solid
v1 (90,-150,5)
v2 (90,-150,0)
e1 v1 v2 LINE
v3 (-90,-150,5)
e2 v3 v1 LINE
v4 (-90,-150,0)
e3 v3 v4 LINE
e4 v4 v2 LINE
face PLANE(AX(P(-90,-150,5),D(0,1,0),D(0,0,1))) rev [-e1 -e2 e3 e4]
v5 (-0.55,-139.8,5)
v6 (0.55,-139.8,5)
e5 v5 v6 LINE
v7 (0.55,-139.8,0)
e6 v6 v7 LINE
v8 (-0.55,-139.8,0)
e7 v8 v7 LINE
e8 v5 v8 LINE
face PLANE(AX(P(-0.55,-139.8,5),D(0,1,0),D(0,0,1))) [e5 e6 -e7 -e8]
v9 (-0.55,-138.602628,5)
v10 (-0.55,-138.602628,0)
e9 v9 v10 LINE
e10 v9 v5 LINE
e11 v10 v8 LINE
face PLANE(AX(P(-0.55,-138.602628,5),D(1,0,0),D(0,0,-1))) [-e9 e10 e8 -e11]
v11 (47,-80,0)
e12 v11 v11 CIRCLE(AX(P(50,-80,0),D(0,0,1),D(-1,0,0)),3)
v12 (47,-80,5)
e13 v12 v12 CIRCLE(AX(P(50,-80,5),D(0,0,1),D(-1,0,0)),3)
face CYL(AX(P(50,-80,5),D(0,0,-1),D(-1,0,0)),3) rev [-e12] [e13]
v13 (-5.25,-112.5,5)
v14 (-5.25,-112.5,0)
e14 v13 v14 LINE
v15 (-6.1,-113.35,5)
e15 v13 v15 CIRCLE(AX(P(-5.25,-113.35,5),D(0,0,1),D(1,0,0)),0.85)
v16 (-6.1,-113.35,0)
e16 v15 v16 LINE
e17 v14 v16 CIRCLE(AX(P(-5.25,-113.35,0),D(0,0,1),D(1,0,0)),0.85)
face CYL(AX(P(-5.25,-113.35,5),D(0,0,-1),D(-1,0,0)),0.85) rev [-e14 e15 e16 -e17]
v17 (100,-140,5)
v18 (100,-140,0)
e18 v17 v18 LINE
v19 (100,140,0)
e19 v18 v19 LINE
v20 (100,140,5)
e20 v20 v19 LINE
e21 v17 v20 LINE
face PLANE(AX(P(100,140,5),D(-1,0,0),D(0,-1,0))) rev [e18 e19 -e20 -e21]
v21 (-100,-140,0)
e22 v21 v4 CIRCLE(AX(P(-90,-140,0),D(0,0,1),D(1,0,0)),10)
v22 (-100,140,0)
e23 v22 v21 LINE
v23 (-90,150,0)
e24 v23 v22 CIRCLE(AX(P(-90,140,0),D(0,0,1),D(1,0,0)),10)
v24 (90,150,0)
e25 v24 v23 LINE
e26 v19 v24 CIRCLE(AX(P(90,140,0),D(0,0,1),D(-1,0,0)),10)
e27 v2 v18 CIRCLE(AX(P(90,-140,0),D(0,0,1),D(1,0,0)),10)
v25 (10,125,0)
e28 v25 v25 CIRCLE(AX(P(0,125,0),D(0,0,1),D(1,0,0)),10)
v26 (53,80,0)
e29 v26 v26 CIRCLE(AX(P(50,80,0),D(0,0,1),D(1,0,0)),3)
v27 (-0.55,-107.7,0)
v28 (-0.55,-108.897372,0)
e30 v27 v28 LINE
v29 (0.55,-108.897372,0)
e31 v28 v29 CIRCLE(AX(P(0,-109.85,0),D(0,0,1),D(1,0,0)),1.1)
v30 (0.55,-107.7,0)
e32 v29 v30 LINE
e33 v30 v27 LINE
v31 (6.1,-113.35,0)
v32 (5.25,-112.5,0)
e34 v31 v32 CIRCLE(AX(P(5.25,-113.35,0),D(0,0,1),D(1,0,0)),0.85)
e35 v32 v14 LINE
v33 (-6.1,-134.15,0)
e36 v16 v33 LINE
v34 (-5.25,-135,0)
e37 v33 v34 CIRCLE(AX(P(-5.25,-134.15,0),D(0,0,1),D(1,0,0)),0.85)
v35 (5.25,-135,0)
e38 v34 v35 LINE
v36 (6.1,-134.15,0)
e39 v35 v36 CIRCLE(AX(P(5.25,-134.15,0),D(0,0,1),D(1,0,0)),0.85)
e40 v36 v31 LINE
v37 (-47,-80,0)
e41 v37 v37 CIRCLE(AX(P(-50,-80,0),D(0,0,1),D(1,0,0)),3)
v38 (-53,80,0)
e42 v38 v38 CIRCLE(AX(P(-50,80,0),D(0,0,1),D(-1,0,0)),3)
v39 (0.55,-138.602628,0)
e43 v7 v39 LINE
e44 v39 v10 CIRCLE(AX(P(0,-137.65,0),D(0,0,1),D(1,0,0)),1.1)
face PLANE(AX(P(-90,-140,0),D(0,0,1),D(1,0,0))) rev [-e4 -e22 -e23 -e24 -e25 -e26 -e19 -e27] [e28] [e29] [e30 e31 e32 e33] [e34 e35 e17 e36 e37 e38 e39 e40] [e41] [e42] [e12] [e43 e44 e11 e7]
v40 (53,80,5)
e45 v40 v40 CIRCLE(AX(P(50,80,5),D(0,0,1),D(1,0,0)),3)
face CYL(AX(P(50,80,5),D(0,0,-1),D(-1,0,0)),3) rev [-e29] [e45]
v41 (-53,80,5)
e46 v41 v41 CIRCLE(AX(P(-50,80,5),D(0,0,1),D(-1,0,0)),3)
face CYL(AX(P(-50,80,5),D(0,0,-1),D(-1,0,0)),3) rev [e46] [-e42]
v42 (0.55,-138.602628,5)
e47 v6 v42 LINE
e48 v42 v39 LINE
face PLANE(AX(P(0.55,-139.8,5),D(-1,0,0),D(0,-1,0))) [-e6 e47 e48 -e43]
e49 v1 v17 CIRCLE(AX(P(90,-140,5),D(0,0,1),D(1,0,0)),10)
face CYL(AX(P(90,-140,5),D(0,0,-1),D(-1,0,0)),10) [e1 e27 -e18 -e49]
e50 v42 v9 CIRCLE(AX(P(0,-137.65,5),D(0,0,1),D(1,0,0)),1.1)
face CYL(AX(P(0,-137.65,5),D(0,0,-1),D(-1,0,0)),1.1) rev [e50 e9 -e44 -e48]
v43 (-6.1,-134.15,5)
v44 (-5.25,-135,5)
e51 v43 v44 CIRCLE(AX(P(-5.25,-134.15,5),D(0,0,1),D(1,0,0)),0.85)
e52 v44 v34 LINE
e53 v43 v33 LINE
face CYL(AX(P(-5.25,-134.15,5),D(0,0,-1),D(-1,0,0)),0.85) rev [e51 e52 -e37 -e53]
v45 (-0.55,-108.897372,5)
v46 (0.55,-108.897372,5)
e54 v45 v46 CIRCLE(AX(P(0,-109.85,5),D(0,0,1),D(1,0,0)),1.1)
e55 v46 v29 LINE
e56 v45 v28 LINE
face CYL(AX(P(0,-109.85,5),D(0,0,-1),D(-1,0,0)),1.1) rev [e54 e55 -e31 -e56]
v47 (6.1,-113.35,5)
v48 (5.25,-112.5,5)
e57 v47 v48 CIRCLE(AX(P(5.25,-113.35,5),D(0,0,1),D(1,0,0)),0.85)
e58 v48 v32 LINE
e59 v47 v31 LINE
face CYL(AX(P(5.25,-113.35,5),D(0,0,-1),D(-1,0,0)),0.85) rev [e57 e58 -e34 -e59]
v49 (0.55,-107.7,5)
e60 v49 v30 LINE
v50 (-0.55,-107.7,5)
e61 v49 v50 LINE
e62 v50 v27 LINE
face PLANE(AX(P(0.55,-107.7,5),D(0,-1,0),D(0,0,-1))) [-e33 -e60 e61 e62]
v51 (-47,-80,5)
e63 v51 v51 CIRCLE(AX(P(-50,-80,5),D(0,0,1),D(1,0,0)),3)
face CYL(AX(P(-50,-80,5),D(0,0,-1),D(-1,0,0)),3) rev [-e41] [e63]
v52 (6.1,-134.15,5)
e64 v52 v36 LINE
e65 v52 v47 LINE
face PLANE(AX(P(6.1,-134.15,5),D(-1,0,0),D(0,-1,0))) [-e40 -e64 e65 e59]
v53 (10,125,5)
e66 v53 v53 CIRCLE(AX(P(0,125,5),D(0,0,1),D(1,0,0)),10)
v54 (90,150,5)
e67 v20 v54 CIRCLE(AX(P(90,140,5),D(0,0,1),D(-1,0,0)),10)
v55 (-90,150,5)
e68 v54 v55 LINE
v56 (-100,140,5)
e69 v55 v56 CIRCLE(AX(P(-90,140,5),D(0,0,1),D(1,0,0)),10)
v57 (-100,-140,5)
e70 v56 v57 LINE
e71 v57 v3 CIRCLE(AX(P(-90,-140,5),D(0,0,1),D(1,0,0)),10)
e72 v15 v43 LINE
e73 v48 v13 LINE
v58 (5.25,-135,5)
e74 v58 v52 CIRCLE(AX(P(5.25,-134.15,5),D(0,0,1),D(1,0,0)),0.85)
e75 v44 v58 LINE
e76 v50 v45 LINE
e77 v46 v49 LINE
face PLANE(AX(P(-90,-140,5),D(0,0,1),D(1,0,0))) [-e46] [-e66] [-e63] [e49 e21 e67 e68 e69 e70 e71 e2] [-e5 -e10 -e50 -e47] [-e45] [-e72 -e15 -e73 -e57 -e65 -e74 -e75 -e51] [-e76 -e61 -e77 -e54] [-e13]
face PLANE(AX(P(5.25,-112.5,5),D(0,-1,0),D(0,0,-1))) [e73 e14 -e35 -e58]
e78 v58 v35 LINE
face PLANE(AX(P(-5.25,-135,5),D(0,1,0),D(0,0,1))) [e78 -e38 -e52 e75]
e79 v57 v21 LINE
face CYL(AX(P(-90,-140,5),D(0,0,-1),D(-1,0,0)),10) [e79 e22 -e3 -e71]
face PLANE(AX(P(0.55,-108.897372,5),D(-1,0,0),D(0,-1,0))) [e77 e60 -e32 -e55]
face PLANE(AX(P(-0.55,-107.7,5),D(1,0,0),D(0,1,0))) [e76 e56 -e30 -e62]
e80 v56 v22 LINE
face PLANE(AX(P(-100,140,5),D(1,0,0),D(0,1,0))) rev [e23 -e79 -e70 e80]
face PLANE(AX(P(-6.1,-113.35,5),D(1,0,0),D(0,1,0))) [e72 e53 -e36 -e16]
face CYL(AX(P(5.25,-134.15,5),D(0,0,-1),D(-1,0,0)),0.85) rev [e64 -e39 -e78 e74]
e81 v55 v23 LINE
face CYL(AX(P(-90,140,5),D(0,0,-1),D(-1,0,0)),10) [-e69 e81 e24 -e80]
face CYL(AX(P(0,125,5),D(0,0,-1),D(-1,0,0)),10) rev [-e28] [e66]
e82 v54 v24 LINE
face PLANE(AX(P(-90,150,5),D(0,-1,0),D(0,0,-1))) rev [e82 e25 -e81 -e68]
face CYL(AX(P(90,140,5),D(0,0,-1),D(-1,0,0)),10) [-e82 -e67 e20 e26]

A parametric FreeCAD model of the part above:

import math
import FreeCAD as App
import Part
import Sketcher
from FreeCAD import Vector

doc = App.newDocument("Part")
params = doc.addObject("Spreadsheet::Sheet", "Params")
for row, (alias, value) in enumerate([
    ("sketch1_diameter", "6 mm"),
    ("sketch1_diameter2", "20 mm"),
    ("sketch1_radius", "1.1 mm"),
    ("sketch1_width", "180 mm"),
    ("sketch1_height", "280 mm"),
    ("pad1_length", "5 mm"),
], start=1):
    params.set(f"A{row}", alias)
    params.set(f"B{row}", "=" + value)
    params.setAlias(f"B{row}", alias)

body = doc.addObject("PartDesign::Body", "Body")

sketch1 = body.newObject("Sketcher::SketchObject", "Sketch")
sketch1.AttachmentSupport = (doc.getObject("XY_Plane"), [""])
sketch1.MapMode = "FlatFace"
sketch1.addGeometry(Part.LineSegment(Vector(90, 150, 0), Vector(-90, 150, 0)), False)
sketch1.addGeometry(Part.ArcOfCircle(Part.Circle(Vector(-90, 140, 0), Vector(0, 0, 1), 10), math.radians(90), math.radians(180)), False)
sketch1.addGeometry(Part.LineSegment(Vector(-100, 140, 0), Vector(-100, -140, 0)), False)
sketch1.addGeometry(Part.ArcOfCircle(Part.Circle(Vector(-90, -140, 0), Vector(0, 0, 1), 10), math.radians(180), math.radians(270)), False)
sketch1.addGeometry(Part.LineSegment(Vector(-90, -150, 0), Vector(90, -150, 0)), False)
sketch1.addGeometry(Part.ArcOfCircle(Part.Circle(Vector(90, -140, 0), Vector(0, 0, 1), 10), math.radians(-90), math.radians(0)), False)
sketch1.addGeometry(Part.LineSegment(Vector(100, -140, 0), Vector(100, 140, 0)), False)
sketch1.addGeometry(Part.ArcOfCircle(Part.Circle(Vector(90, 140, 0), Vector(0, 0, 1), 10), math.radians(0), math.radians(90)), False)
sketch1.addGeometry(Part.Circle(Vector(50, -80, 0), Vector(0, 0, 1), 3), False)
sketch1.addGeometry(Part.ArcOfCircle(Part.Circle(Vector(0, -137.7, 0), Vector(0, 0, 1), 1.1), math.radians(-60), math.radians(240)), False)
sketch1.addGeometry(Part.LineSegment(Vector(0.6, -138.6, 0), Vector(0.6, -139.8, 0)), False)
sketch1.addGeometry(Part.LineSegment(Vector(0.6, -139.8, 0), Vector(-0.6, -139.8, 0)), False)
sketch1.addGeometry(Part.LineSegment(Vector(-0.6, -139.8, 0), Vector(-0.6, -138.6, 0)), False)
sketch1.addGeometry(Part.ArcOfCircle(Part.Circle(Vector(-5.2, -113.3, 0), Vector(0, 0, 1), 0.8), math.radians(90), math.radians(180)), False)
sketch1.addGeometry(Part.LineSegment(Vector(-5.2, -112.5, 0), Vector(5.2, -112.5, 0)), False)
sketch1.addGeometry(Part.ArcOfCircle(Part.Circle(Vector(5.2, -113.3, 0), Vector(0, 0, 1), 0.8), math.radians(0), math.radians(90)), False)
sketch1.addGeometry(Part.LineSegment(Vector(6.1, -113.3, 0), Vector(6.1, -134.2, 0)), False)
sketch1.addGeometry(Part.ArcOfCircle(Part.Circle(Vector(5.2, -134.2, 0), Vector(0, 0, 1), 0.8), math.radians(-90), math.radians(0)), False)
sketch1.addGeometry(Part.LineSegment(Vector(5.2, -135, 0), Vector(-5.2, -135, 0)), False)
sketch1.addGeometry(Part.ArcOfCircle(Part.Circle(Vector(-5.2, -134.2, 0), Vector(0, 0, 1), 0.8), math.radians(180), math.radians(270)), False)
sketch1.addGeometry(Part.LineSegment(Vector(-6.1, -134.2, 0), Vector(-6.1, -113.3, 0)), False)
sketch1.addGeometry(Part.LineSegment(Vector(-0.6, -107.7, 0), Vector(0.6, -107.7, 0)), False)
sketch1.addGeometry(Part.LineSegment(Vector(0.6, -107.7, 0), Vector(0.6, -108.9, 0)), False)
sketch1.addGeometry(Part.ArcOfCircle(Part.Circle(Vector(0, -109.8, 0), Vector(0, 0, 1), 1.1), math.radians(120), math.radians(420)), False)
sketch1.addGeometry(Part.LineSegment(Vector(-0.6, -108.9, 0), Vector(-0.6, -107.7, 0)), False)
sketch1.addGeometry(Part.Circle(Vector(-50, -80, 0), Vector(0, 0, 1), 3), False)
sketch1.addGeometry(Part.Circle(Vector(50, 80, 0), Vector(0, 0, 1), 3), False)
sketch1.addGeometry(Part.Circle(Vector(0, 125, 0), Vector(0, 0, 1), 10), False)
sketch1.addGeometry(Part.Circle(Vector(-50, 80, 0), Vector(0, 0, 1), 3), False)
sketch1.addConstraint(Sketcher.Constraint("Tangent", 0, 2, 1, 1))
sketch1.addConstraint(Sketcher.Constraint("Tangent", 1, 2, 2, 1))
sketch1.addConstraint(Sketcher.Constraint("Tangent", 2, 2, 3, 1))
sketch1.addConstraint(Sketcher.Constraint("Tangent", 3, 2, 4, 1))
sketch1.addConstraint(Sketcher.Constraint("Tangent", 4, 2, 5, 1))
sketch1.addConstraint(Sketcher.Constraint("Tangent", 5, 2, 6, 1))
sketch1.addConstraint(Sketcher.Constraint("Tangent", 6, 2, 7, 1))
sketch1.addConstraint(Sketcher.Constraint("Tangent", 7, 2, 0, 1))
sketch1.addConstraint(Sketcher.Constraint("Coincident", 9, 1, 10, 1))
sketch1.addConstraint(Sketcher.Constraint("Coincident", 10, 2, 11, 1))
sketch1.addConstraint(Sketcher.Constraint("Coincident", 11, 2, 12, 1))
sketch1.addConstraint(Sketcher.Constraint("Coincident", 12, 2, 9, 2))
sketch1.addConstraint(Sketcher.Constraint("Tangent", 13, 1, 14, 1))
sketch1.addConstraint(Sketcher.Constraint("Tangent", 14, 2, 15, 2))
sketch1.addConstraint(Sketcher.Constraint("Tangent", 15, 1, 16, 1))
sketch1.addConstraint(Sketcher.Constraint("Tangent", 16, 2, 17, 2))
sketch1.addConstraint(Sketcher.Constraint("Tangent", 17, 1, 18, 1))
sketch1.addConstraint(Sketcher.Constraint("Tangent", 18, 2, 19, 2))
sketch1.addConstraint(Sketcher.Constraint("Tangent", 19, 1, 20, 1))
sketch1.addConstraint(Sketcher.Constraint("Tangent", 20, 2, 13, 2))
sketch1.addConstraint(Sketcher.Constraint("Coincident", 21, 2, 22, 1))
sketch1.addConstraint(Sketcher.Constraint("Coincident", 22, 2, 23, 2))
sketch1.addConstraint(Sketcher.Constraint("Coincident", 23, 1, 24, 1))
sketch1.addConstraint(Sketcher.Constraint("Coincident", 24, 2, 21, 1))
sketch1.addConstraint(Sketcher.Constraint("Horizontal", 0))
sketch1.addConstraint(Sketcher.Constraint("Vertical", 2))
sketch1.addConstraint(Sketcher.Constraint("Horizontal", 4))
sketch1.addConstraint(Sketcher.Constraint("Vertical", 6))
sketch1.addConstraint(Sketcher.Constraint("Vertical", 10))
sketch1.addConstraint(Sketcher.Constraint("Horizontal", 11))
sketch1.addConstraint(Sketcher.Constraint("Vertical", 12))
sketch1.addConstraint(Sketcher.Constraint("Horizontal", 14))
sketch1.addConstraint(Sketcher.Constraint("Vertical", 16))
sketch1.addConstraint(Sketcher.Constraint("Horizontal", 18))
sketch1.addConstraint(Sketcher.Constraint("Vertical", 20))
sketch1.addConstraint(Sketcher.Constraint("Horizontal", 21))
sketch1.addConstraint(Sketcher.Constraint("Vertical", 22))
sketch1.addConstraint(Sketcher.Constraint("Vertical", 24))
sketch1.addConstraint(Sketcher.Constraint("Equal", 1, 3))
sketch1.addConstraint(Sketcher.Constraint("Equal", 3, 5))
sketch1.addConstraint(Sketcher.Constraint("Equal", 5, 7))
sketch1.addConstraint(Sketcher.Constraint("Equal", 13, 15))
sketch1.addConstraint(Sketcher.Constraint("Equal", 15, 17))
sketch1.addConstraint(Sketcher.Constraint("Equal", 17, 19))
sketch1.addConstraint(Sketcher.Constraint("Equal", 9, 23))
sketch1.addConstraint(Sketcher.Constraint("Equal", 8, 25))
sketch1.addConstraint(Sketcher.Constraint("Equal", 25, 26))
sketch1.addConstraint(Sketcher.Constraint("Equal", 7, 27))
sketch1.addConstraint(Sketcher.Constraint("Equal", 26, 28))
sketch1.addConstraint(Sketcher.Constraint("Symmetric", 1, 3, 5, 3, -1, 1))
sketch1.addConstraint(Sketcher.Constraint("Symmetric", 25, 3, 26, 3, -1, 1))
sketch1.addConstraint(Sketcher.Constraint("Symmetric", 8, 3, 28, 3, -1, 1))
sketch1.addConstraint(Sketcher.Constraint("Symmetric", 8, 3, 25, 3, -2))
sketch1.addConstraint(Sketcher.Constraint("Symmetric", 9, 1, 12, 2, -2))
sketch1.addConstraint(Sketcher.Constraint("Symmetric", 22, 2, 23, 1, -2))
sketch1.addConstraint(Sketcher.Constraint("PointOnObject", 27, 3, -2))
sketch1.addConstraint(Sketcher.Constraint("Vertical", 10, 2, 21, 2))
sketch1.addConstraint(Sketcher.Constraint("Equal", 12, 22))
sketch1.addConstraint(Sketcher.Constraint("Diameter", 8, 6.0))
sketch1.addConstraint(Sketcher.Constraint("Diameter", 27, 20.0))
sketch1.addConstraint(Sketcher.Constraint("Radius", 9, 1.1))
sketch1.addConstraint(Sketcher.Constraint("DistanceX", 0, 2, 0, 1, 180.0))
sketch1.addConstraint(Sketcher.Constraint("DistanceY", 2, 2, 2, 1, 280.0))
sketch1.addConstraint(Sketcher.Constraint("Radius", 13, 0.85))
sketch1.addConstraint(Sketcher.Constraint("DistanceX", 11, 2, 11, 1, 1.1))
sketch1.addConstraint(Sketcher.Constraint("DistanceX", 14, 1, 14, 2, 10.5))
sketch1.addConstraint(Sketcher.Constraint("DistanceY", 16, 2, 16, 1, 20.8))
sketch1.addConstraint(Sketcher.Constraint("DistanceX", -1, 1, 8, 3, 50.0))
sketch1.addConstraint(Sketcher.Constraint("DistanceY", 8, 3, -1, 1, 80.0))
sketch1.addConstraint(Sketcher.Constraint("DistanceY", -1, 1, 27, 3, 125.0))
sketch1.addConstraint(Sketcher.Constraint("DistanceY", 17, 1, -1, 1, 135.0))
sketch1.addConstraint(Sketcher.Constraint("DistanceY", 10, 2, -1, 1, 139.8))
sketch1.addConstraint(Sketcher.Constraint("DistanceX", -1, 1, 15, 1, 6.1))
sketch1.addConstraint(Sketcher.Constraint("DistanceY", 21, 2, -1, 1, 107.7))
sketch1.addConstraint(Sketcher.Constraint("DistanceY", 9, 3, 13, 3, 24.3))
sketch1.setExpression("Constraints[58]", "Params.sketch1_diameter")
sketch1.setExpression("Constraints[59]", "Params.sketch1_diameter2")
sketch1.setExpression("Constraints[60]", "Params.sketch1_radius")
sketch1.setExpression("Constraints[61]", "Params.sketch1_width")
sketch1.setExpression("Constraints[62]", "Params.sketch1_height")
pad1 = body.newObject("PartDesign::Pad", "Pad")
pad1.Profile = sketch1
pad1.setExpression("Length", "Params.pad1_length")

doc.recompute()
